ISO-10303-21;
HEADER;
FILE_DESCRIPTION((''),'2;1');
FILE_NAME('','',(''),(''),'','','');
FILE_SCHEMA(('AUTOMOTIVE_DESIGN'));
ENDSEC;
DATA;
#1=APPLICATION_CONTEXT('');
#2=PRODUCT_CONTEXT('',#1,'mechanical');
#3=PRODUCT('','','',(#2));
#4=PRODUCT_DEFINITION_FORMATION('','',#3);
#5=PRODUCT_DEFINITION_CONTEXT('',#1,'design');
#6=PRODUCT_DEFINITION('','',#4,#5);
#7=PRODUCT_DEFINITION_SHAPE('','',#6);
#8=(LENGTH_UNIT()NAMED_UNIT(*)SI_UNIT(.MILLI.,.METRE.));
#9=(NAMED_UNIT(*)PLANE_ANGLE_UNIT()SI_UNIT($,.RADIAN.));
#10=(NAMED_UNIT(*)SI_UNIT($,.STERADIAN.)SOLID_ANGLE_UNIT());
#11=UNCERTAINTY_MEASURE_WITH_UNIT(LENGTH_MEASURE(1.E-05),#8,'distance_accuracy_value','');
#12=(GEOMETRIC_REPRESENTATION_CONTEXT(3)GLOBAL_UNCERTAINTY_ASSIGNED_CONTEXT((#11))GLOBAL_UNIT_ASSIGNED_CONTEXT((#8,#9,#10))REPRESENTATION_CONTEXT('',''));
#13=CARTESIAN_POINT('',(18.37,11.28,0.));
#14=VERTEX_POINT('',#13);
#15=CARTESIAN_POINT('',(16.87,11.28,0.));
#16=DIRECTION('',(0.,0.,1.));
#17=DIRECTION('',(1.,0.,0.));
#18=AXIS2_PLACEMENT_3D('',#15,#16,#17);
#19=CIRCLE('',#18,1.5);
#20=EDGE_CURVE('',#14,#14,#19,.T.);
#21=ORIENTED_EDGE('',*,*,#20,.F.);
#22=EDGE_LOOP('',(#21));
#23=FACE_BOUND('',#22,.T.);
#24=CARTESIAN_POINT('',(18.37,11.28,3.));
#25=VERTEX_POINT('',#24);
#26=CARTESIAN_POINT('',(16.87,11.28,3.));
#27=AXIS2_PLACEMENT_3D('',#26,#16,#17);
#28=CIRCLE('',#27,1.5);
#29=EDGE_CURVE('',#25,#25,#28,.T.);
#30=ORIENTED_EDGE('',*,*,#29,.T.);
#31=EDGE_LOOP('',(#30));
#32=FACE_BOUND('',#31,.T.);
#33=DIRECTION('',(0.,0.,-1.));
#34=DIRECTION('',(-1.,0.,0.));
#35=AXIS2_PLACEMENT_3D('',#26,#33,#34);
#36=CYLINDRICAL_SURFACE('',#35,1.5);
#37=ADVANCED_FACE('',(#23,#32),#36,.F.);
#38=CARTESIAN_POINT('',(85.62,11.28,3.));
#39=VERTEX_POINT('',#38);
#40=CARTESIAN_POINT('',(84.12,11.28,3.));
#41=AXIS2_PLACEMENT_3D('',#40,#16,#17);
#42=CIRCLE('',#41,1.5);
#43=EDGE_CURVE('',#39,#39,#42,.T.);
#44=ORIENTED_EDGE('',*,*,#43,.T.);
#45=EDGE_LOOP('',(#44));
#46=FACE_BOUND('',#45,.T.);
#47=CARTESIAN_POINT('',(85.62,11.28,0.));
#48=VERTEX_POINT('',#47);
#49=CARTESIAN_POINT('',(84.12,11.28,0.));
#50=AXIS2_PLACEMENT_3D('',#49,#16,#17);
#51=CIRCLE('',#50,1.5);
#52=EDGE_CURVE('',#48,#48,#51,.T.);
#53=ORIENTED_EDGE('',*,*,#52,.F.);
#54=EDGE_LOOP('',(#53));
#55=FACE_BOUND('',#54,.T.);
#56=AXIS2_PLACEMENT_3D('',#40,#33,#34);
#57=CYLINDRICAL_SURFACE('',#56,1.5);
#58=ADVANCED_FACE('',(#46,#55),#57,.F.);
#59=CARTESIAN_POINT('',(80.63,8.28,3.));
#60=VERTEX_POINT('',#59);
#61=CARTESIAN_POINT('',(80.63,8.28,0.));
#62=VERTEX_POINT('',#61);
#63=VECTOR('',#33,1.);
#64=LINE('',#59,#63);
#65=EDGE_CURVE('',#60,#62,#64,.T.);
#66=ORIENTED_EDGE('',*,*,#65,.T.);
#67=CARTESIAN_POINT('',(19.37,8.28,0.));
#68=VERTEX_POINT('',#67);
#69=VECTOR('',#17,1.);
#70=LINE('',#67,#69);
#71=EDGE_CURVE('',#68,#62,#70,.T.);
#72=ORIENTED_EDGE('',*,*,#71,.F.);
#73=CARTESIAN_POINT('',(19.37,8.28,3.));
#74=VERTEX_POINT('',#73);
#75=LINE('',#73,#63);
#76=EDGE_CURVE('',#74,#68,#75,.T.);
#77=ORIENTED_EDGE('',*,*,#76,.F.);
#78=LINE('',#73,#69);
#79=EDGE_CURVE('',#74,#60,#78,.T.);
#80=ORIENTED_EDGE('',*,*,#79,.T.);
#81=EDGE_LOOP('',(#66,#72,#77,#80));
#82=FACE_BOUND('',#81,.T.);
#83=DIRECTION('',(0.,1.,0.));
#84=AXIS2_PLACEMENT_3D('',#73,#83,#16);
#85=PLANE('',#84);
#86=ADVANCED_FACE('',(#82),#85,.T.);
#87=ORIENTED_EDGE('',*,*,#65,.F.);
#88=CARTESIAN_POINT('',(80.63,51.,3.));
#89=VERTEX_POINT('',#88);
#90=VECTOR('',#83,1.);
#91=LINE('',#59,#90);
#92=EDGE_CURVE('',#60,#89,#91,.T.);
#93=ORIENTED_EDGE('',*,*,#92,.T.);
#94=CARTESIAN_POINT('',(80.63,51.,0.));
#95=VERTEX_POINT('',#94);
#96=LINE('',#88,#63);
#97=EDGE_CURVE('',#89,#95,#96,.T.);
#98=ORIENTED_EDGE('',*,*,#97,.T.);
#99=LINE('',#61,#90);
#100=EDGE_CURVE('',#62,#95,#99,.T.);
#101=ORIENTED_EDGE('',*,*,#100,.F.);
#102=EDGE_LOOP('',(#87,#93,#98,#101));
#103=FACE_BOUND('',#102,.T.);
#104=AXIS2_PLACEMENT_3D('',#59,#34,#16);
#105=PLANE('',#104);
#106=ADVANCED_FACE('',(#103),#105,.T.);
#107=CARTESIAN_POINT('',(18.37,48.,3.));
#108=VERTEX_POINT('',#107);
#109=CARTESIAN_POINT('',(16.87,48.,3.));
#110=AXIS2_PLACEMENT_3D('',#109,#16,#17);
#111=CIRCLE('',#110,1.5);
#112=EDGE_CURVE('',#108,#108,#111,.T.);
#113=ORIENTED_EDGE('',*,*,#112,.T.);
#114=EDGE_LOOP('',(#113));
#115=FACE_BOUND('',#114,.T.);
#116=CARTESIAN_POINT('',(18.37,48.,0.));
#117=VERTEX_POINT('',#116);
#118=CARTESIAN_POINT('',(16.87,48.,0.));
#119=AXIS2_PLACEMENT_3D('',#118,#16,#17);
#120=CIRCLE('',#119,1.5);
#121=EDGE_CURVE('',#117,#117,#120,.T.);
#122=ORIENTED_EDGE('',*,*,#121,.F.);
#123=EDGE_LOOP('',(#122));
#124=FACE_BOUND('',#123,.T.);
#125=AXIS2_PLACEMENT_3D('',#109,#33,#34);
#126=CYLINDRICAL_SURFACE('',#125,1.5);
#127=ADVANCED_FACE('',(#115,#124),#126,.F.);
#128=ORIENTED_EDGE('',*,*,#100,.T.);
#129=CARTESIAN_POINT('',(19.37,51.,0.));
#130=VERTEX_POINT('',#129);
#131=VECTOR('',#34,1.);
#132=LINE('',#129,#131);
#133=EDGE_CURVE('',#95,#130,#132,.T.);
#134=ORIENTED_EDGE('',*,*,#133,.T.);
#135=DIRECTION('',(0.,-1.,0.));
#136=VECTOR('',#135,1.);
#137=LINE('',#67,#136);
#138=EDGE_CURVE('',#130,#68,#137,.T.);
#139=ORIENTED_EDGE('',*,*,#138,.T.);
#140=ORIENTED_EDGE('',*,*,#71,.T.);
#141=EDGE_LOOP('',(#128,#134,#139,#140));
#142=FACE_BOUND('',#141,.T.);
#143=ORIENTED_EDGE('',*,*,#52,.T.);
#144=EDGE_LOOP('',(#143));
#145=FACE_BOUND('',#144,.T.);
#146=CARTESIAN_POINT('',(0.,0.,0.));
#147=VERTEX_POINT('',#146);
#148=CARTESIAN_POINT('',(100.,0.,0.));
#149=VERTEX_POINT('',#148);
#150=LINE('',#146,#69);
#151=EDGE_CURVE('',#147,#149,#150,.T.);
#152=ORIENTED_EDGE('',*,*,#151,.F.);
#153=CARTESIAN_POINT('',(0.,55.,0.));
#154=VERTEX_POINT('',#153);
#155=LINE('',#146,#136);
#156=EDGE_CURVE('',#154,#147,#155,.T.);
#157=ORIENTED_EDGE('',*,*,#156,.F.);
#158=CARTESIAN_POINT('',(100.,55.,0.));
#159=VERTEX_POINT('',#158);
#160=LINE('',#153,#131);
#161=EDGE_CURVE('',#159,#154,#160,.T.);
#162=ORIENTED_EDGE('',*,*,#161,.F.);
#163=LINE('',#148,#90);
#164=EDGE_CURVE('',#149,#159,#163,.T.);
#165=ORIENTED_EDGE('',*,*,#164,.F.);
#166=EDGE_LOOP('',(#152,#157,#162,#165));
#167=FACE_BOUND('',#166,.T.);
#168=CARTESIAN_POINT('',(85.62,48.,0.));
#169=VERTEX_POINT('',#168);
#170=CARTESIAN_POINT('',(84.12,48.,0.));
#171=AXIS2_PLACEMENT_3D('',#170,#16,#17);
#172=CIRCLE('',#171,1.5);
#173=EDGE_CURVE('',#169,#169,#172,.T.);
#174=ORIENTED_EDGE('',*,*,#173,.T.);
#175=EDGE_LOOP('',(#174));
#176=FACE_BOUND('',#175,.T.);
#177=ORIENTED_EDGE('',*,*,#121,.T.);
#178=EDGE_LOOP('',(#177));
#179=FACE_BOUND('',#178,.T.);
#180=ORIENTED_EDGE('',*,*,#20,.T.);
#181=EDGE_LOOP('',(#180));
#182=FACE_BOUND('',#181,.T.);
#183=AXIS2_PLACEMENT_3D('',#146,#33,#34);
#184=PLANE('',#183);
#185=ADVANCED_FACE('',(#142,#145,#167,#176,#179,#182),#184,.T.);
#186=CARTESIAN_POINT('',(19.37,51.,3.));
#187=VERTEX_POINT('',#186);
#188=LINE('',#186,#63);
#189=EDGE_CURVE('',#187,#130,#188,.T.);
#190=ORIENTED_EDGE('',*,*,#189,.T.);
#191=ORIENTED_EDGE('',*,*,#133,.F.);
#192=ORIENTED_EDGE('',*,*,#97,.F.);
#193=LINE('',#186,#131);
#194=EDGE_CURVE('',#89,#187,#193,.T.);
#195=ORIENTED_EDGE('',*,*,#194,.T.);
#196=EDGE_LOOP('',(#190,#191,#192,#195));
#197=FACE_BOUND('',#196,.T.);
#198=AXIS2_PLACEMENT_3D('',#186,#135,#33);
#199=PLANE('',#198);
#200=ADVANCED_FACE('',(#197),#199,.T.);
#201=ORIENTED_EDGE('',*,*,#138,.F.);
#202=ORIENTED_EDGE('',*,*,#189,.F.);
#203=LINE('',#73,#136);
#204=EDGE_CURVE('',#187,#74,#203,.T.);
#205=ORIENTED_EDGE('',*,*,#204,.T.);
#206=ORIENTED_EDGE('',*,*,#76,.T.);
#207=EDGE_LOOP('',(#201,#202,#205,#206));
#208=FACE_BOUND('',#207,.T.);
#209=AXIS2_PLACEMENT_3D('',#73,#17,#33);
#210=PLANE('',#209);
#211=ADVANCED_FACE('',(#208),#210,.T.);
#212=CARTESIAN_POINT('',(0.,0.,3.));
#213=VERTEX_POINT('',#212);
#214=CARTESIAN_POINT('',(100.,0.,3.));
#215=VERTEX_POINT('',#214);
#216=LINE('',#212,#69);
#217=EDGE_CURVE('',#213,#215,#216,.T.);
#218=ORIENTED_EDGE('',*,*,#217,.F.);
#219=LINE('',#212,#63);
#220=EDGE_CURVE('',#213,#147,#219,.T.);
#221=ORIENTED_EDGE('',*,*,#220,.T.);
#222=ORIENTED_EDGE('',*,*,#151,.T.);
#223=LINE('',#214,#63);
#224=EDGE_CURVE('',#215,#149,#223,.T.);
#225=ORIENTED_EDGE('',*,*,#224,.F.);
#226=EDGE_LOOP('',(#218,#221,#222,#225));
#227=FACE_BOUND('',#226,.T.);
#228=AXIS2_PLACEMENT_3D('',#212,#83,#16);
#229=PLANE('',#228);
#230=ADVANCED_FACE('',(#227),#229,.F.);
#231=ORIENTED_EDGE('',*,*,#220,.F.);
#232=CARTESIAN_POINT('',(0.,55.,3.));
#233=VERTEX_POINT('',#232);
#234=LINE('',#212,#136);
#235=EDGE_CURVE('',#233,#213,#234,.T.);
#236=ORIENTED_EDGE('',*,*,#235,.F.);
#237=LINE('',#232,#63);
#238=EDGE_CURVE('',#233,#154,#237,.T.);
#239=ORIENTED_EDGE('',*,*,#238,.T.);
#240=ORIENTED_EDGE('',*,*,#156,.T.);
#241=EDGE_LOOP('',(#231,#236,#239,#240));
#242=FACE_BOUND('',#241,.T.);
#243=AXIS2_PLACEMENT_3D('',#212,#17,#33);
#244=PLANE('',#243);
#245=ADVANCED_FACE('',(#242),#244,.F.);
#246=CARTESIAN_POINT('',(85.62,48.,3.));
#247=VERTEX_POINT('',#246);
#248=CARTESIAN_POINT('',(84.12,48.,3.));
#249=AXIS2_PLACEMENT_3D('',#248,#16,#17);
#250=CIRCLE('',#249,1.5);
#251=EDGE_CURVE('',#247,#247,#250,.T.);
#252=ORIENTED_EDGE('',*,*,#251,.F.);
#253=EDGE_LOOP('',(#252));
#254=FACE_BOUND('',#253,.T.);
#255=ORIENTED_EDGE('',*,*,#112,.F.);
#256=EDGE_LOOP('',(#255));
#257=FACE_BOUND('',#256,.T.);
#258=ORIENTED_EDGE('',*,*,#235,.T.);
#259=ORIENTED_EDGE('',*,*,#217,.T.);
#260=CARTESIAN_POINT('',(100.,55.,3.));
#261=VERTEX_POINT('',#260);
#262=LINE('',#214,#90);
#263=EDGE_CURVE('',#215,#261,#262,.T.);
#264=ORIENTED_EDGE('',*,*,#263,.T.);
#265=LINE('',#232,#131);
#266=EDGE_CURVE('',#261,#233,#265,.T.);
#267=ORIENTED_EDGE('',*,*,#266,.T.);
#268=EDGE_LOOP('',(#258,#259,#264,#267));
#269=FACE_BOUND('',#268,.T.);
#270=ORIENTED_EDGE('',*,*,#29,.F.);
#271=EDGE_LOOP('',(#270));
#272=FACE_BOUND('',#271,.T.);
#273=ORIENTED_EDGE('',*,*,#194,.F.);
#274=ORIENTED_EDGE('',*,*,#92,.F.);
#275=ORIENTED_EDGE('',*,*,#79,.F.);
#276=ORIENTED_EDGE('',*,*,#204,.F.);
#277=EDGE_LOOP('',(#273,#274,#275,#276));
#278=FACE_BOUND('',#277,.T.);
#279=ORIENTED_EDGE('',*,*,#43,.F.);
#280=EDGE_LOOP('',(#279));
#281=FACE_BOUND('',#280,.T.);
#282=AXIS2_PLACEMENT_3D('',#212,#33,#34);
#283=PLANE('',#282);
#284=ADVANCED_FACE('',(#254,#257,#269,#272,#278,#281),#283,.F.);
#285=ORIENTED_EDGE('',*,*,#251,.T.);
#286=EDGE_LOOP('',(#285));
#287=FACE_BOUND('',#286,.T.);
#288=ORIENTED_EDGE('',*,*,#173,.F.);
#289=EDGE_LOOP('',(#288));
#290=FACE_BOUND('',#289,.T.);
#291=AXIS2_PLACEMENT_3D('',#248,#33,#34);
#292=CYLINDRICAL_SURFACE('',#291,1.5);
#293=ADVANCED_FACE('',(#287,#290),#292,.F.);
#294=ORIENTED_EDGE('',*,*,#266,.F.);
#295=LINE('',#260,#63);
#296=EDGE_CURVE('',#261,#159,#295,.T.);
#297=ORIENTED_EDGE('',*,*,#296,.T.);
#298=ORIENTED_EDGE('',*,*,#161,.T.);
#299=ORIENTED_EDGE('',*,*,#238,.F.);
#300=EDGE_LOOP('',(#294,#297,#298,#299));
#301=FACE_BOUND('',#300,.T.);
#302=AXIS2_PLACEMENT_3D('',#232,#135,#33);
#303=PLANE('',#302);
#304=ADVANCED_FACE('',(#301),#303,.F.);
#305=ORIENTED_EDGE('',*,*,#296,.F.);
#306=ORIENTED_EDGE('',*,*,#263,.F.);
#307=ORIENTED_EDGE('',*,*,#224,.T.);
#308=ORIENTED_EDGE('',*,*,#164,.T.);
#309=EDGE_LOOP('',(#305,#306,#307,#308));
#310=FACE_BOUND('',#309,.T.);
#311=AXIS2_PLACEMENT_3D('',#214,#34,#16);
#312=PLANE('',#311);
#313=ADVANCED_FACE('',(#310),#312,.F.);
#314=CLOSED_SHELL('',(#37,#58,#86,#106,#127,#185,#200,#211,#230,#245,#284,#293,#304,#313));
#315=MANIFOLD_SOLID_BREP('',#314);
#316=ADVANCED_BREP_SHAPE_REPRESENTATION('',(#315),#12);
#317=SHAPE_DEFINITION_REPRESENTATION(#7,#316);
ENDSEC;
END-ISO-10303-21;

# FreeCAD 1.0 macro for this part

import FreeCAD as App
import Part
import Sketcher
Q = App.Units.Quantity

doc = App.newDocument("Part")
body = doc.addObject("PartDesign::Body", "Body")

# Sketch on XY plane
sketch1 = doc.addObject("Sketcher::SketchObject", "Sketch")
body.addObject(sketch1)
sketch1.AttachmentSupport = (doc.XY_Plane, [""])
sketch1.MapMode = "FlatFace"
sketch1.addGeometry([
    Part.LineSegment(App.Vector(0, 55, 0), App.Vector(0, 0, 0)),  # 0
    Part.LineSegment(App.Vector(0, 0, 0), App.Vector(100, 0, 0)),  # 1
    Part.LineSegment(App.Vector(100, 0, 0), App.Vector(100, 55, 0)),  # 2
    Part.LineSegment(App.Vector(100, 55, 0), App.Vector(0, 55, 0)),  # 3
    Part.Circle(App.Vector(16.9, 11.3, 0), App.Vector(0, 0, 1), 1.5),  # 4
    Part.Circle(App.Vector(84.1, 11.3, 0), App.Vector(0, 0, 1), 1.5),  # 5
    Part.LineSegment(App.Vector(80.6, 8.3, 0), App.Vector(19.4, 8.3, 0)),  # 6
    Part.LineSegment(App.Vector(19.4, 8.3, 0), App.Vector(19.4, 51, 0)),  # 7
    Part.LineSegment(App.Vector(19.4, 51, 0), App.Vector(80.6, 51, 0)),  # 8
    Part.LineSegment(App.Vector(80.6, 51, 0), App.Vector(80.6, 8.3, 0)),  # 9
    Part.Circle(App.Vector(16.9, 48, 0), App.Vector(0, 0, 1), 1.5),  # 10
    Part.Circle(App.Vector(84.1, 48, 0), App.Vector(0, 0, 1), 1.5),  # 11
], False)
sketch1.addConstraint([
    Sketcher.Constraint("Coincident", 0, 2, 1, 1),
    Sketcher.Constraint("Coincident", 1, 2, 2, 1),
    Sketcher.Constraint("Coincident", 2, 2, 3, 1),
    Sketcher.Constraint("Coincident", 3, 2, 0, 1),
    Sketcher.Constraint("Coincident", 6, 2, 7, 1),
    Sketcher.Constraint("Coincident", 7, 2, 8, 1),
    Sketcher.Constraint("Coincident", 8, 2, 9, 1),
    Sketcher.Constraint("Coincident", 9, 2, 6, 1),
    Sketcher.Constraint("Vertical", 0),
    Sketcher.Constraint("Horizontal", 1),
    Sketcher.Constraint("Vertical", 2),
    Sketcher.Constraint("Horizontal", 3),
    Sketcher.Constraint("Horizontal", 6),
    Sketcher.Constraint("Vertical", 7),
    Sketcher.Constraint("Horizontal", 8),
    Sketcher.Constraint("Vertical", 9),
    Sketcher.Constraint("Coincident", 0, 2, -1, 1),
    Sketcher.Constraint("Equal", 4, 5),
    Sketcher.Constraint("Equal", 5, 10),
    Sketcher.Constraint("Equal", 10, 11),
    Sketcher.Constraint("Horizontal", 4, 3, 5, 3),
    Sketcher.Constraint("Horizontal", 10, 3, 11, 3),
    Sketcher.Constraint("Vertical", 4, 3, 10, 3),
    Sketcher.Constraint("Vertical", 5, 3, 11, 3),
    Sketcher.Constraint("Diameter", 4, Q("3 mm")),
    Sketcher.Constraint("DistanceX", 1, 1, 1, 2, Q("100 mm")),
    Sketcher.Constraint("DistanceY", 0, 2, 0, 1, Q("55 mm")),
    Sketcher.Constraint("DistanceY", -1, 1, 10, 3, Q("48 mm")),
    Sketcher.Constraint("DistanceY", -1, 1, 7, 2, Q("51 mm")),
    Sketcher.Constraint("DistanceY", 6, 2, 4, 3, Q("3 mm")),
    Sketcher.Constraint("DistanceX", 6, 2, 6, 1, Q("61.26 mm")),
    Sketcher.Constraint("DistanceY", 7, 1, 7, 2, Q("42.72 mm")),
    Sketcher.Constraint("DistanceX", 4, 3, 6, 2, Q("2.5 mm")),
    Sketcher.Constraint("DistanceX", -1, 1, 4, 3, Q("16.87 mm")),
    Sketcher.Constraint("DistanceX", -1, 1, 5, 3, Q("84.12 mm")),
])
pad1 = doc.addObject("PartDesign::Pad", "Pad")
body.addObject(pad1)
pad1.Profile = sketch1
pad1.Length = 3

doc.recompute()
